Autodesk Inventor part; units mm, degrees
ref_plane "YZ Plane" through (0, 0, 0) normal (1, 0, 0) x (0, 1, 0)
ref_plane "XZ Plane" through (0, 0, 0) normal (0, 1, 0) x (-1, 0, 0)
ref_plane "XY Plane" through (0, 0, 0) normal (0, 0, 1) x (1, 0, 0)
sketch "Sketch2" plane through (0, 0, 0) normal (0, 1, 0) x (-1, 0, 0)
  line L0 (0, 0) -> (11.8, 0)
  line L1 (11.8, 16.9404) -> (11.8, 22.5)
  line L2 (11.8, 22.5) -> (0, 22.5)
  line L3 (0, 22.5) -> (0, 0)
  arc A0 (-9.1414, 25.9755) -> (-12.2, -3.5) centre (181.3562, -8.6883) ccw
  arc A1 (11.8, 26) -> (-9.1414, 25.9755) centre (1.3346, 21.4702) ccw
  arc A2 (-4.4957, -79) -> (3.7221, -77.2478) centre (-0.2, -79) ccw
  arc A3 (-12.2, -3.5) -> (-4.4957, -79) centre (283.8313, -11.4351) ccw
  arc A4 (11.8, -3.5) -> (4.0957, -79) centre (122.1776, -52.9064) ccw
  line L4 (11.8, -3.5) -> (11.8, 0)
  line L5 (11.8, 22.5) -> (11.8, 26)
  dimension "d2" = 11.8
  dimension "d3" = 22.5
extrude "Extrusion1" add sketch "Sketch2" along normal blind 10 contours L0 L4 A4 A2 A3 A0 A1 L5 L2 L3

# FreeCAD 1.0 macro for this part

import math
import FreeCAD as App
import Part
import Sketcher

V = App.Vector
Q = App.Units.Quantity

doc = App.newDocument("Part")
body = doc.addObject("PartDesign::Body", "Body")

sketch1 = body.newObject("Sketcher::SketchObject", "Sketch")
sketch1.AttachmentSupport = (doc.getObject("XZ_Plane"), [""])
sketch1.MapMode = "FlatFace"
sketch1.addGeometry(Part.LineSegment(V(-11.8, 0, 0), V(0, 0, 0)), False)
sketch1.addGeometry(Part.LineSegment(V(0, 0, 0), V(0, 22.5, 0)), False)
sketch1.addGeometry(Part.LineSegment(V(0, 22.5, 0), V(-11.8, 22.5, 0)), False)
sketch1.addGeometry(Part.LineSegment(V(-11.8, 22.5, 0), V(-11.8, 26, 0)), False)
sketch1.addGeometry(Part.ArcOfCircle(Part.Circle(V(-1.3, 21.5, 0), V(0, 0, 1), 11.4), math.radians(23), math.radians(157)), False)
sketch1.addGeometry(Part.ArcOfCircle(Part.Circle(V(-181.4, -8.7, 0), V(0, 0, 1), 193.6), math.radians(1.54), math.radians(10.31)), False)
sketch1.addGeometry(Part.ArcOfCircle(Part.Circle(V(-283.8, -11.4, 0), V(0, 0, 1), 296.1), math.radians(-13.19), math.radians(1.54)), False)
sketch1.addGeometry(Part.ArcOfCircle(Part.Circle(V(0.2, -79, 0), V(0, 0, 1), 4.3), math.radians(180), math.radians(360)), False)
sketch1.addGeometry(Part.ArcOfCircle(Part.Circle(V(-122.2, -52.9, 0), V(0, 0, 1), 120.9), math.radians(-12), math.radians(24)), False)
sketch1.addGeometry(Part.LineSegment(V(-11.8, -3.5, 0), V(-11.8, 0, 0)), False)
sketch1.addConstraint(Sketcher.Constraint("Coincident", 0, 2, 1, 1))
sketch1.addConstraint(Sketcher.Constraint("Coincident", 1, 2, 2, 1))
sketch1.addConstraint(Sketcher.Constraint("Coincident", 2, 2, 3, 1))
sketch1.addConstraint(Sketcher.Constraint("Coincident", 3, 2, 4, 2))
sketch1.addConstraint(Sketcher.Constraint("Coincident", 4, 1, 5, 2))
sketch1.addConstraint(Sketcher.Constraint("Tangent", 5, 1, 6, 2))
sketch1.addConstraint(Sketcher.Constraint("Coincident", 6, 1, 7, 2))
sketch1.addConstraint(Sketcher.Constraint("Coincident", 7, 1, 8, 1))
sketch1.addConstraint(Sketcher.Constraint("Coincident", 8, 2, 9, 1))
sketch1.addConstraint(Sketcher.Constraint("Coincident", 9, 2, 0, 1))
sketch1.addConstraint(Sketcher.Constraint("Horizontal", 0))
sketch1.addConstraint(Sketcher.Constraint("Vertical", 1))
sketch1.addConstraint(Sketcher.Constraint("Horizontal", 2))
sketch1.addConstraint(Sketcher.Constraint("Vertical", 3))
sketch1.addConstraint(Sketcher.Constraint("Vertical", 9))
sketch1.addConstraint(Sketcher.Constraint("Coincident", 0, 2, -1, 1))
sketch1.addConstraint(Sketcher.Constraint("Horizontal", 7, 3, 6, 1))
sketch1.addConstraint(Sketcher.Constraint("Horizontal", 6, 1, 7, 1))
sketch1.addConstraint(Sketcher.Constraint("Horizontal", 5, 1, 8, 2))
sketch1.addConstraint(Sketcher.Constraint("Vertical", 3, 2, 8, 2))
sketch1.addConstraint(Sketcher.Constraint("Equal", 3, 9))
sketch1.addConstraint(Sketcher.Constraint("DistanceX", 0, 1, 0, 2, Q("11.8 mm")))
sketch1.addConstraint(Sketcher.Constraint("DistanceY", 1, 1, 1, 2, Q("22.5 mm")))
sketch1.addConstraint(Sketcher.Constraint("DistanceY", 3, 1, 3, 2, Q("3.5 mm")))
sketch1.addConstraint(Sketcher.Constraint("DistanceY", 7, 3, -1, 1, Q("79 mm")))
sketch1.addConstraint(Sketcher.Constraint("DistanceX", 2, 2, 7, 3, Q("12 mm")))
sketch1.addConstraint(Sketcher.Constraint("DistanceX", 2, 2, 5, 1, Q("24 mm")))
sketch1.addConstraint(Sketcher.Constraint("Radius", 4, Q("11.4037 mm")))
sketch1.addConstraint(Sketcher.Constraint("Radius", 5, Q("193.6285 mm")))
sketch1.addConstraint(Sketcher.Constraint("Radius", 6, Q("296.1354 mm")))
sketch1.addConstraint(Sketcher.Constraint("Radius", 7, Q("4.2957 mm")))
sketch1.addConstraint(Sketcher.Constraint("Radius", 8, Q("120.9306 mm")))
sketch1.addConstraint(Sketcher.Constraint("DistanceY", 5, 3, 4, 3, Q("30.159 mm")))
pad1 = body.newObject("PartDesign::Pad", "Pad")
pad1.Profile = sketch1
pad1.Length = 10
pad1.Reversed = True

doc.recompute()
